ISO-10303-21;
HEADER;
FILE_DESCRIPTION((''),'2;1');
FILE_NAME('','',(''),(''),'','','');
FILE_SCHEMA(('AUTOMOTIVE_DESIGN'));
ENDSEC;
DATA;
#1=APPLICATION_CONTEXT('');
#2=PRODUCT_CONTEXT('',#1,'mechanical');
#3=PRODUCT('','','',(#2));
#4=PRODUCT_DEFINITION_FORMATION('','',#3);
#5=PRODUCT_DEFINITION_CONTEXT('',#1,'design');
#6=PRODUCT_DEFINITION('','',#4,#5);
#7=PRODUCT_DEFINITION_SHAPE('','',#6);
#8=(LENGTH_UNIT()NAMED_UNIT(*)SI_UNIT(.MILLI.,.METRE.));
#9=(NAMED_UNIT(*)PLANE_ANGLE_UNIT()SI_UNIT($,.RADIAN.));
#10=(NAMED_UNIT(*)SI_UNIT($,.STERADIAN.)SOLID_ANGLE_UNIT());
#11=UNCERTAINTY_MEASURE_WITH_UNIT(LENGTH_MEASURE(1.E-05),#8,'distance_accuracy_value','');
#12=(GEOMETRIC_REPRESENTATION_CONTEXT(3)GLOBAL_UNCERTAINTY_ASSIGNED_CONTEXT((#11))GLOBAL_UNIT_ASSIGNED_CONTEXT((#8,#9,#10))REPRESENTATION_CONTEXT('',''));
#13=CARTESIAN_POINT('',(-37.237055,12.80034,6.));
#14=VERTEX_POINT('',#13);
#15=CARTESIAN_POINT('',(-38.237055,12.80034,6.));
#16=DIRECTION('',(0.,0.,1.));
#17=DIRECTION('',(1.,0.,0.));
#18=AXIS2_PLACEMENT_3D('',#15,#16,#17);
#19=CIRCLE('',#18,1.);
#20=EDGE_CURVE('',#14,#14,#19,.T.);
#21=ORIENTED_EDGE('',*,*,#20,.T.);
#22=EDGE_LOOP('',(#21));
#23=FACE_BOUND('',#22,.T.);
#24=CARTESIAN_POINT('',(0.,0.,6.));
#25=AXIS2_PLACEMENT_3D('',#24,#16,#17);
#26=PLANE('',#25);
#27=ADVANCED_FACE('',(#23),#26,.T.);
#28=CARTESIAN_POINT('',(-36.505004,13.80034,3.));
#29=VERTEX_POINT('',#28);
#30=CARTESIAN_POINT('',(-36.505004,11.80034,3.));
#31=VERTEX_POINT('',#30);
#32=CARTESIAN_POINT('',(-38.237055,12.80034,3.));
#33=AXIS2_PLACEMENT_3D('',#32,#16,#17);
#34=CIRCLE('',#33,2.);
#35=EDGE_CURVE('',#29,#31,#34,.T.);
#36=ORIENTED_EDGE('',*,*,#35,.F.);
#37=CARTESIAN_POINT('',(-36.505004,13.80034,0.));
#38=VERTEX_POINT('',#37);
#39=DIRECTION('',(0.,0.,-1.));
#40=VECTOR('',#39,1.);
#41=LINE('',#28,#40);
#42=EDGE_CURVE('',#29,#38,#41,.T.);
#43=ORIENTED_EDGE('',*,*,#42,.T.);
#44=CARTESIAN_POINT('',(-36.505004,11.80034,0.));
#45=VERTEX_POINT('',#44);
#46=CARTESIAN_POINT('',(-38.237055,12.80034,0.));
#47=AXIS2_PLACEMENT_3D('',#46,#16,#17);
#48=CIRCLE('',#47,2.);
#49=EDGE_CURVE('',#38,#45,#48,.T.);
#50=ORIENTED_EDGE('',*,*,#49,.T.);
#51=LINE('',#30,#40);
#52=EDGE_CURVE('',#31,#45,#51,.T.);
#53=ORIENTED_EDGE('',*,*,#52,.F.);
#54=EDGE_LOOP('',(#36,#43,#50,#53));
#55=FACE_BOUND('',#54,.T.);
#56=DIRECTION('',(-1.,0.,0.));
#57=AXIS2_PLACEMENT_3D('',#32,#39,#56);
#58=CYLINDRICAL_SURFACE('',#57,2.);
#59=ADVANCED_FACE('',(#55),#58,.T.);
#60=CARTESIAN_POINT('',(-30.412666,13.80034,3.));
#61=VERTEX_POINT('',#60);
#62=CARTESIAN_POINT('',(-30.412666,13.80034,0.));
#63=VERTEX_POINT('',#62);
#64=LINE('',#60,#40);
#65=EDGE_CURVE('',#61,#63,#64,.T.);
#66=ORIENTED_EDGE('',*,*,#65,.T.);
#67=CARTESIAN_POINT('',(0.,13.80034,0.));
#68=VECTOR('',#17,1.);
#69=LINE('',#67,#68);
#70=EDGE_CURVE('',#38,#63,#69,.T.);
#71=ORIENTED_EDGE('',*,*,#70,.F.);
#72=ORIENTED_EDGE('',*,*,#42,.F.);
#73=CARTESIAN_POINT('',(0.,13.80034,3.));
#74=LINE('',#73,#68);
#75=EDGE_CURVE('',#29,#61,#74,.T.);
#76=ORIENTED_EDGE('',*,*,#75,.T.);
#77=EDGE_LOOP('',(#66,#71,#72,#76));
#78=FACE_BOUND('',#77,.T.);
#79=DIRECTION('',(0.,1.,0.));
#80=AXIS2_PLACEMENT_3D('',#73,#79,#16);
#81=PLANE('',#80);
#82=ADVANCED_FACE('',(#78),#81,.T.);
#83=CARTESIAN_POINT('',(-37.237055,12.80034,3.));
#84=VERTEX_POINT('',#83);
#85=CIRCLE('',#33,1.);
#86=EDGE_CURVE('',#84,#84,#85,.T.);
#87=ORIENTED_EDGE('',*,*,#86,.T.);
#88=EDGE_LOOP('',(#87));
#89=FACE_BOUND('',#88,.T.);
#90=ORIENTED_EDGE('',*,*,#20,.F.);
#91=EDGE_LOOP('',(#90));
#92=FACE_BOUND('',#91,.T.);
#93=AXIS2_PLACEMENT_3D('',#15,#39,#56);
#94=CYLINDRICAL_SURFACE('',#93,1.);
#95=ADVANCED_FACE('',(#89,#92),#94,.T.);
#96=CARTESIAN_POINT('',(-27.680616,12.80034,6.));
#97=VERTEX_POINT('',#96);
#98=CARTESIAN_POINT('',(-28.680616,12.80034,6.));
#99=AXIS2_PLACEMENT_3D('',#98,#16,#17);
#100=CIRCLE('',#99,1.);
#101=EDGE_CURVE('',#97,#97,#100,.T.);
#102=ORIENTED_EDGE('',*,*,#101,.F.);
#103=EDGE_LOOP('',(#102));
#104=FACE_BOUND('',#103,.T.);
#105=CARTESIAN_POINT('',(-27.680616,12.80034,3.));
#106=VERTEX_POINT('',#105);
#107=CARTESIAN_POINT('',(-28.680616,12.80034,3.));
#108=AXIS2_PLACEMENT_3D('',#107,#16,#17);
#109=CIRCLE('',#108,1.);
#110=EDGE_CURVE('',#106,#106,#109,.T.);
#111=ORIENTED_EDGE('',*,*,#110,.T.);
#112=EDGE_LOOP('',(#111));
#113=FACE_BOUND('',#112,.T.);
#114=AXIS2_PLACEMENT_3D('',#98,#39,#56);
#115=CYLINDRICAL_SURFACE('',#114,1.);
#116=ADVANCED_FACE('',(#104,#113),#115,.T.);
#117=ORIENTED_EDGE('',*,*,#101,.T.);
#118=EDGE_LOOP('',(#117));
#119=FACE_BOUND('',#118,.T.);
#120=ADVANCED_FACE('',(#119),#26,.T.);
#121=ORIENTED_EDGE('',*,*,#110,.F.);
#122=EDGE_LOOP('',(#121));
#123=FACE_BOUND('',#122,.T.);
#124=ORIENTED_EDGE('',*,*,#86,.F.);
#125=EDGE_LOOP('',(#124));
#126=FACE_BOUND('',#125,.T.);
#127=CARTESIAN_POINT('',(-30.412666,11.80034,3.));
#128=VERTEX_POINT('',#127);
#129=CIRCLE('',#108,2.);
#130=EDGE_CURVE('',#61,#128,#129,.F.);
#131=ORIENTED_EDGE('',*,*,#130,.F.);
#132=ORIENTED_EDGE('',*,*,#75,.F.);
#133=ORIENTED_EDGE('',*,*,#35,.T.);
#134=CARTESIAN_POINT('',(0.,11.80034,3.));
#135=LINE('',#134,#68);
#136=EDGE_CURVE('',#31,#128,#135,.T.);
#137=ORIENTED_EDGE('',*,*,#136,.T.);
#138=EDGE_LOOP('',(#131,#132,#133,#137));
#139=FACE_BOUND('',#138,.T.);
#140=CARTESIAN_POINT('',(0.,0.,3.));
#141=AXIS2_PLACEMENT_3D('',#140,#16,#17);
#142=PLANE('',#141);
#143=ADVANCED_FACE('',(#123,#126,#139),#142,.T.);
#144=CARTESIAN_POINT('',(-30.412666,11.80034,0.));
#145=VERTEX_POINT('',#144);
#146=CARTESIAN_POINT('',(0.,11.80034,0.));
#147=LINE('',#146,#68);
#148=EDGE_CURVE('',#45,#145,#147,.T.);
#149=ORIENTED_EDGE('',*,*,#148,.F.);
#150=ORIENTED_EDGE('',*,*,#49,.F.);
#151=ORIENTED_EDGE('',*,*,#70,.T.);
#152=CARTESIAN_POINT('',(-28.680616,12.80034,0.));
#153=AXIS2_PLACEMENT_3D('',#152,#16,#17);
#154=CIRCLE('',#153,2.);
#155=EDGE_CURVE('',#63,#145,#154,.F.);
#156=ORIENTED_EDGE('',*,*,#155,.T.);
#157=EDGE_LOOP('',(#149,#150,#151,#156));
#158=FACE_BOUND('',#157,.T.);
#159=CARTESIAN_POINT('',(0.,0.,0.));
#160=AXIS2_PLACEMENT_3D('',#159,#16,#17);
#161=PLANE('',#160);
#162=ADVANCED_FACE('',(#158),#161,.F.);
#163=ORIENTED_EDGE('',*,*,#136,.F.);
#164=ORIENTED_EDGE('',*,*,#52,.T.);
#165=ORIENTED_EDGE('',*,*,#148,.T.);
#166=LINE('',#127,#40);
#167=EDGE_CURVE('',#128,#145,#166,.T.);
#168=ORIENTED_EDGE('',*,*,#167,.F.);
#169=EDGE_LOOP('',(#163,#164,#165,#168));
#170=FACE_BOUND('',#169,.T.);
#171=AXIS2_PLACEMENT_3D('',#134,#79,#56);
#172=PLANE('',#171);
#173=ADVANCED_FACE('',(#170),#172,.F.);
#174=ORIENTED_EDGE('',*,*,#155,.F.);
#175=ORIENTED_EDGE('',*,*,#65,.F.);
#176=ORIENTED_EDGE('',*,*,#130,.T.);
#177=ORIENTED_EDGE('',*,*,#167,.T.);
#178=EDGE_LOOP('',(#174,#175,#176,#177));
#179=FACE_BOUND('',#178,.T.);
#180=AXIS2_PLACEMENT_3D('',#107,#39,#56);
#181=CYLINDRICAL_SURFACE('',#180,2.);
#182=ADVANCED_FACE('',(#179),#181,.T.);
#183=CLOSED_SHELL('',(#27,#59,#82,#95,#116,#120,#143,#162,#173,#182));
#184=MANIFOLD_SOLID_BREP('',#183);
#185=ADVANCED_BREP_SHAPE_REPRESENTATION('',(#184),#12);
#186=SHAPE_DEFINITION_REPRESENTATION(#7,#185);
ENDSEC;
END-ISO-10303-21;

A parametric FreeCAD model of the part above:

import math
import FreeCAD as App
import Part
import Sketcher
from FreeCAD import Vector

doc = App.newDocument("Part")
params = doc.addObject("Spreadsheet::Sheet", "Params")
for row, (alias, value) in enumerate([
    ("sketch1_radius", "2 mm"),
    ("pad1_length", "3 mm"),
    ("sketch2_diameter", "2 mm"),
    ("pad2_length", "3 mm"),
], start=1):
    params.set(f"A{row}", alias)
    params.set(f"B{row}", "=" + value)
    params.setAlias(f"B{row}", alias)

body = doc.addObject("PartDesign::Body", "Body")

# Sketch on XY plane
sketch1 = body.newObject("Sketcher::SketchObject", "Sketch")
sketch1.AttachmentSupport = (doc.getObject("XY_Plane"), [""])
sketch1.MapMode = "FlatFace"
sketch1.addGeometry([
    Part.LineSegment(Vector(-30.4, 13.8, 0), Vector(-36.5, 13.8, 0)),
    Part.ArcOfCircle(Part.Circle(Vector(-38.2, 12.8, 0), Vector(0, 0, 1), 2), math.radians(30), math.radians(330)),
    Part.LineSegment(Vector(-36.5, 11.8, 0), Vector(-30.4, 11.8, 0)),
    Part.ArcOfCircle(Part.Circle(Vector(-28.7, 12.8, 0), Vector(0, 0, 1), 2), math.radians(-150), math.radians(150)),
], False)
sketch1.addConstraint([
    Sketcher.Constraint("Coincident", 0, 2, 1, 1),
    Sketcher.Constraint("Coincident", 1, 2, 2, 1),
    Sketcher.Constraint("Coincident", 2, 2, 3, 1),
    Sketcher.Constraint("Coincident", 3, 2, 0, 1),
    Sketcher.Constraint("Horizontal", 0),
    Sketcher.Constraint("Horizontal", 2),
    Sketcher.Constraint("Equal", 1, 3),
    Sketcher.Constraint("Horizontal", 1, 3, 3, 3),
    Sketcher.Constraint("Vertical", 0, 2, 1, 2),
    Sketcher.Constraint("Radius", 1, 2.0),
    Sketcher.Constraint("DistanceY", 1, 3, 0, 2, 1.0),
    Sketcher.Constraint("DistanceX", 0, 2, 0, 1, 6.092338),
    Sketcher.Constraint("DistanceY", -1, 1, 1, 3, 12.80034),
    Sketcher.Constraint("DistanceX", 1, 3, -1, 1, 38.237055),
])
sketch1.setExpression("Constraints[9]", "Params.sketch1_radius")
pad1 = body.newObject("PartDesign::Pad", "Pad")
pad1.Profile = sketch1
pad1.setExpression("Length", "Params.pad1_length")

# Sketch on XY plane
sketch2 = body.newObject("Sketcher::SketchObject", "Sketch001")
sketch2.AttachmentSupport = (doc.getObject("XY_Plane"), [""])
sketch2.MapMode = "FlatFace"
sketch2.AttachmentOffset = App.Placement(Vector(0, 0, 3), App.Rotation())
sketch2.addGeometry([
    Part.Circle(Vector(-28.7, 12.8, 0), Vector(0, 0, 1), 1),
    Part.Circle(Vector(-38.2, 12.8, 0), Vector(0, 0, 1), 1),
], False)
sketch2.addConstraint([
    Sketcher.Constraint("Equal", 0, 1),
    Sketcher.Constraint("Horizontal", 0, 3, 1, 3),
    Sketcher.Constraint("Diameter", 0, 2.0),
    Sketcher.Constraint("DistanceY", -1, 1, 0, 3, 12.80034),
    Sketcher.Constraint("DistanceX", 1, 3, 0, 3, 9.55644),
    Sketcher.Constraint("DistanceX", 0, 3, -1, 1, 28.680616),
])
sketch2.setExpression("Constraints[2]", "Params.sketch2_diameter")
pad2 = body.newObject("PartDesign::Pad", "Pad001")
pad2.Profile = sketch2
pad2.setExpression("Length", "Params.pad2_length")

doc.recompute()
